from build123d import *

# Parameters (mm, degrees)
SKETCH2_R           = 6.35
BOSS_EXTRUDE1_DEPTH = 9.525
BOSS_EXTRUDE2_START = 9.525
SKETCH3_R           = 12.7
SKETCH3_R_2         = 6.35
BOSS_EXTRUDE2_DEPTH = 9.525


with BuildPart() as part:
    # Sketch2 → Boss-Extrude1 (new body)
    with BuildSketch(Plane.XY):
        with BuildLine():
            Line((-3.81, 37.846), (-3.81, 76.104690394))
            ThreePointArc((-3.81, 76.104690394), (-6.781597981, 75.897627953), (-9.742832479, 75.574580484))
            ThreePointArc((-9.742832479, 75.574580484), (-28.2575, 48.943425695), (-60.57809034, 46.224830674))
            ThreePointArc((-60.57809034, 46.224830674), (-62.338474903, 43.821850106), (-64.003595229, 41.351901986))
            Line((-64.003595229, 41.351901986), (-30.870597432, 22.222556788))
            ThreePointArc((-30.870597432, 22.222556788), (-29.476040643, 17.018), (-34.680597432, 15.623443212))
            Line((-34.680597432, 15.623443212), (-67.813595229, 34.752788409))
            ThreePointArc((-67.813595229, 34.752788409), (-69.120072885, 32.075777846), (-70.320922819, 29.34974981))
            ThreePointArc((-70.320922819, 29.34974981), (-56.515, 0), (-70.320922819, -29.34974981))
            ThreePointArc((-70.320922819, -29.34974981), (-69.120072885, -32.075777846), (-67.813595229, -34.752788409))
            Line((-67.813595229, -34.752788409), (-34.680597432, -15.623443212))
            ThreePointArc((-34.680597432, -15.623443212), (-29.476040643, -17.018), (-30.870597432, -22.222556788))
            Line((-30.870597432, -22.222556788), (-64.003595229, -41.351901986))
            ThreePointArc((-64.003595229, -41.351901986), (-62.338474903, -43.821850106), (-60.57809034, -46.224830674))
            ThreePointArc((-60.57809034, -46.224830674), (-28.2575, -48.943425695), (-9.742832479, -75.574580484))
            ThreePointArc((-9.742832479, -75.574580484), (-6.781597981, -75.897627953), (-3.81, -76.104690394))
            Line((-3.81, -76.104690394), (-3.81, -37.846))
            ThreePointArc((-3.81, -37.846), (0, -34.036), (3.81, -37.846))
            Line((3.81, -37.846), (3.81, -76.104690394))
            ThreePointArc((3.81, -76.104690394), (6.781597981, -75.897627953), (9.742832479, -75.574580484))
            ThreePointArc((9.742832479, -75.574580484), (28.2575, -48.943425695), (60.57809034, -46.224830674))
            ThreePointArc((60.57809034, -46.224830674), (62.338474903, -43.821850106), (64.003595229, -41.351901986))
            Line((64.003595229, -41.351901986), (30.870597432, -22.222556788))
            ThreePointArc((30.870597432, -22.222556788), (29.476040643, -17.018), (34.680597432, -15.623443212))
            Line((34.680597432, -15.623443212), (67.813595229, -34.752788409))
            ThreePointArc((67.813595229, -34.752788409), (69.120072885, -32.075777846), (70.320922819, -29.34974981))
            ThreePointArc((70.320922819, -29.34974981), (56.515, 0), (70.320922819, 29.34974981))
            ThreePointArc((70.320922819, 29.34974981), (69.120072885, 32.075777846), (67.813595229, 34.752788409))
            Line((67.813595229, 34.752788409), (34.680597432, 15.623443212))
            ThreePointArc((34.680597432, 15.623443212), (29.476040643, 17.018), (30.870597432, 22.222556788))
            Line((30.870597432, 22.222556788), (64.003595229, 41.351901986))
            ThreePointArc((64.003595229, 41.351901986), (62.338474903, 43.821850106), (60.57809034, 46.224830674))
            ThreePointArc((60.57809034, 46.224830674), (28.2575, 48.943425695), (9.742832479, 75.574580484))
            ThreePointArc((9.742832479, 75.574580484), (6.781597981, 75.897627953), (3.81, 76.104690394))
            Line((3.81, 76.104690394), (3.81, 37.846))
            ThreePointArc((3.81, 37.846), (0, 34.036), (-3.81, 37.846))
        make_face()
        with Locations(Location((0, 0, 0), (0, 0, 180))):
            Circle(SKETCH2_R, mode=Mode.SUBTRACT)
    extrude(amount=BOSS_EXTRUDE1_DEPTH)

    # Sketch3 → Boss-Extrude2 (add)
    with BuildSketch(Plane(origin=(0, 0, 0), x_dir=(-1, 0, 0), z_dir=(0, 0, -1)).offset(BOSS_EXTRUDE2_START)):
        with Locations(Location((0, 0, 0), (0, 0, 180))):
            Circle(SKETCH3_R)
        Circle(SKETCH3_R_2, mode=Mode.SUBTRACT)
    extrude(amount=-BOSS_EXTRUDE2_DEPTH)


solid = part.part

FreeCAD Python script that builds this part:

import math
import FreeCAD as App
import Part
import Sketcher
Q = App.Units.Quantity

doc = App.newDocument("Part")
body = doc.addObject("PartDesign::Body", "Body")

# Sketch on XY plane
sketch1 = doc.addObject("Sketcher::SketchObject", "Sketch")
body.addObject(sketch1)
sketch1.AttachmentSupport = (doc.XY_Plane, [""])
sketch1.MapMode = "FlatFace"
sketch1.addGeometry(Part.LineSegment(App.Vector(-3.8, 37.8, 0), App.Vector(-3.8, 76.1, 0)), False)
sketch1.addGeometry(Part.ArcOfCircle(Part.Circle(App.Vector(0, 0, 0), App.Vector(0, 0, 1), 76.2), math.radians(92.87), math.radians(97.35)), False)
sketch1.addGeometry(Part.ArcOfCircle(Part.Circle(App.Vector(-47.3, 81.9, 0), App.Vector(0, 0, 1), 38.1), math.radians(-110), math.radians(-10)), False)
sketch1.addGeometry(Part.ArcOfCircle(Part.Circle(App.Vector(0, 0, 0), App.Vector(0, 0, 1), 76.2), math.radians(142.65), math.radians(147.13)), False)
sketch1.addGeometry(Part.LineSegment(App.Vector(-64, 41.4, 0), App.Vector(-30.9, 22.2, 0)), False)
sketch1.addGeometry(Part.ArcOfCircle(Part.Circle(App.Vector(-32.8, 18.9, 0), App.Vector(0, 0, 1), 3.8), math.radians(-120), math.radians(60)), False)
sketch1.addGeometry(Part.LineSegment(App.Vector(-34.7, 15.6, 0), App.Vector(-67.8, 34.8, 0)), False)
sketch1.addGeometry(Part.ArcOfCircle(Part.Circle(App.Vector(0, 0, 0), App.Vector(0, 0, 1), 76.2), math.radians(152.87), math.radians(157.35)), False)
sketch1.addGeometry(Part.ArcOfCircle(Part.Circle(App.Vector(-94.6, 0, 0), App.Vector(0, 0, 1), 38.1), math.radians(-50), math.radians(50)), False)
sketch1.addGeometry(Part.ArcOfCircle(Part.Circle(App.Vector(0, 0, 0), App.Vector(0, 0, 1), 76.2), math.radians(-157.35), math.radians(-152.87)), False)
sketch1.addGeometry(Part.LineSegment(App.Vector(-67.8, -34.8, 0), App.Vector(-34.7, -15.6, 0)), False)
sketch1.addGeometry(Part.ArcOfCircle(Part.Circle(App.Vector(-32.8, -18.9, 0), App.Vector(0, 0, 1), 3.8), math.radians(-60), math.radians(120)), False)
sketch1.addGeometry(Part.LineSegment(App.Vector(-30.9, -22.2, 0), App.Vector(-64, -41.4, 0)), False)
sketch1.addGeometry(Part.ArcOfCircle(Part.Circle(App.Vector(0, 0, 0), App.Vector(0, 0, 1), 76.2), math.radians(-147.13), math.radians(-142.65)), False)
sketch1.addGeometry(Part.ArcOfCircle(Part.Circle(App.Vector(-47.3, -81.9, 0), App.Vector(0, 0, 1), 38.1), math.radians(10), math.radians(110)), False)
sketch1.addGeometry(Part.ArcOfCircle(Part.Circle(App.Vector(0, 0, 0), App.Vector(0, 0, 1), 76.2), math.radians(-97.35), math.radians(-92.87)), False)
sketch1.addGeometry(Part.LineSegment(App.Vector(-3.8, -76.1, 0), App.Vector(-3.8, -37.8, 0)), False)
sketch1.addGeometry(Part.ArcOfCircle(Part.Circle(App.Vector(0, -37.8, 0), App.Vector(0, 0, 1), 3.8), math.radians(0), math.radians(180)), False)
sketch1.addGeometry(Part.LineSegment(App.Vector(3.8, -37.8, 0), App.Vector(3.8, -76.1, 0)), False)
sketch1.addGeometry(Part.ArcOfCircle(Part.Circle(App.Vector(0, 0, 0), App.Vector(0, 0, 1), 76.2), math.radians(-87.13), math.radians(-82.65)), False)
sketch1.addGeometry(Part.ArcOfCircle(Part.Circle(App.Vector(47.3, -81.9, 0), App.Vector(0, 0, 1), 38.1), math.radians(70), math.radians(170)), False)
sketch1.addGeometry(Part.ArcOfCircle(Part.Circle(App.Vector(0, 0, 0), App.Vector(0, 0, 1), 76.2), math.radians(-37.35), math.radians(-32.87)), False)
sketch1.addGeometry(Part.LineSegment(App.Vector(64, -41.4, 0), App.Vector(30.9, -22.2, 0)), False)
sketch1.addGeometry(Part.ArcOfCircle(Part.Circle(App.Vector(32.8, -18.9, 0), App.Vector(0, 0, 1), 3.8), math.radians(60), math.radians(240)), False)
sketch1.addGeometry(Part.LineSegment(App.Vector(34.7, -15.6, 0), App.Vector(67.8, -34.8, 0)), False)
sketch1.addGeometry(Part.ArcOfCircle(Part.Circle(App.Vector(0, 0, 0), App.Vector(0, 0, 1), 76.2), math.radians(-27.13), math.radians(-22.65)), False)
sketch1.addGeometry(Part.ArcOfCircle(Part.Circle(App.Vector(94.6, 0, 0), App.Vector(0, 0, 1), 38.1), math.radians(130), math.radians(230)), False)
sketch1.addGeometry(Part.ArcOfCircle(Part.Circle(App.Vector(0, 0, 0), App.Vector(0, 0, 1), 76.2), math.radians(22.65), math.radians(27.13)), False)
sketch1.addGeometry(Part.LineSegment(App.Vector(67.8, 34.8, 0), App.Vector(34.7, 15.6, 0)), False)
sketch1.addGeometry(Part.ArcOfCircle(Part.Circle(App.Vector(32.8, 18.9, 0), App.Vector(0, 0, 1), 3.8), math.radians(120), math.radians(300)), False)
sketch1.addGeometry(Part.LineSegment(App.Vector(30.9, 22.2, 0), App.Vector(64, 41.4, 0)), False)
sketch1.addGeometry(Part.ArcOfCircle(Part.Circle(App.Vector(0, 0, 0), App.Vector(0, 0, 1), 76.2), math.radians(32.87), math.radians(37.35)), False)
sketch1.addGeometry(Part.ArcOfCircle(Part.Circle(App.Vector(47.3, 81.9, 0), App.Vector(0, 0, 1), 38.1), math.radians(-170), math.radians(-70)), False)
sketch1.addGeometry(Part.ArcOfCircle(Part.Circle(App.Vector(0, 0, 0), App.Vector(0, 0, 1), 76.2), math.radians(82.65), math.radians(87.13)), False)
sketch1.addGeometry(Part.LineSegment(App.Vector(3.8, 76.1, 0), App.Vector(3.8, 37.8, 0)), False)
sketch1.addGeometry(Part.ArcOfCircle(Part.Circle(App.Vector(0, 37.8, 0), App.Vector(0, 0, 1), 3.8), math.radians(180), math.radians(360)), False)
sketch1.addGeometry(Part.Circle(App.Vector(0, 0, 0), App.Vector(0, 0, 1), 6.3), False)
sketch1.addConstraint(Sketcher.Constraint("Coincident", 0, 2, 1, 1))
sketch1.addConstraint(Sketcher.Constraint("Coincident", 1, 2, 2, 2))
sketch1.addConstraint(Sketcher.Constraint("Coincident", 2, 1, 3, 1))
sketch1.addConstraint(Sketcher.Constraint("Coincident", 3, 2, 4, 1))
sketch1.addConstraint(Sketcher.Constraint("Tangent", 4, 2, 5, 2))
sketch1.addConstraint(Sketcher.Constraint("Tangent", 5, 1, 6, 1))
sketch1.addConstraint(Sketcher.Constraint("Coincident", 6, 2, 7, 1))
sketch1.addConstraint(Sketcher.Constraint("Coincident", 7, 2, 8, 2))
sketch1.addConstraint(Sketcher.Constraint("Coincident", 8, 1, 9, 1))
sketch1.addConstraint(Sketcher.Constraint("Coincident", 9, 2, 10, 1))
sketch1.addConstraint(Sketcher.Constraint("Tangent", 10, 2, 11, 2))
sketch1.addConstraint(Sketcher.Constraint("Tangent", 11, 1, 12, 1))
sketch1.addConstraint(Sketcher.Constraint("Coincident", 12, 2, 13, 1))
sketch1.addConstraint(Sketcher.Constraint("Coincident", 13, 2, 14, 2))
sketch1.addConstraint(Sketcher.Constraint("Coincident", 14, 1, 15, 1))
sketch1.addConstraint(Sketcher.Constraint("Coincident", 15, 2, 16, 1))
sketch1.addConstraint(Sketcher.Constraint("Tangent", 16, 2, 17, 2))
sketch1.addConstraint(Sketcher.Constraint("Tangent", 17, 1, 18, 1))
sketch1.addConstraint(Sketcher.Constraint("Coincident", 18, 2, 19, 1))
sketch1.addConstraint(Sketcher.Constraint("Coincident", 19, 2, 20, 2))
sketch1.addConstraint(Sketcher.Constraint("Coincident", 20, 1, 21, 1))
sketch1.addConstraint(Sketcher.Constraint("Coincident", 21, 2, 22, 1))
sketch1.addConstraint(Sketcher.Constraint("Tangent", 22, 2, 23, 2))
sketch1.addConstraint(Sketcher.Constraint("Tangent", 23, 1, 24, 1))
sketch1.addConstraint(Sketcher.Constraint("Coincident", 24, 2, 25, 1))
sketch1.addConstraint(Sketcher.Constraint("Coincident", 25, 2, 26, 2))
sketch1.addConstraint(Sketcher.Constraint("Coincident", 26, 1, 27, 1))
sketch1.addConstraint(Sketcher.Constraint("Coincident", 27, 2, 28, 1))
sketch1.addConstraint(Sketcher.Constraint("Tangent", 28, 2, 29, 2))
sketch1.addConstraint(Sketcher.Constraint("Tangent", 29, 1, 30, 1))
sketch1.addConstraint(Sketcher.Constraint("Coincident", 30, 2, 31, 1))
sketch1.addConstraint(Sketcher.Constraint("Coincident", 31, 2, 32, 2))
sketch1.addConstraint(Sketcher.Constraint("Coincident", 32, 1, 33, 1))
sketch1.addConstraint(Sketcher.Constraint("Coincident", 33, 2, 34, 1))
sketch1.addConstraint(Sketcher.Constraint("Tangent", 34, 2, 35, 2))
sketch1.addConstraint(Sketcher.Constraint("Tangent", 35, 1, 0, 1))
sketch1.addConstraint(Sketcher.Constraint("Vertical", 0))
sketch1.addConstraint(Sketcher.Constraint("Vertical", 16))
sketch1.addConstraint(Sketcher.Constraint("Vertical", 18))
sketch1.addConstraint(Sketcher.Constraint("Vertical", 34))
sketch1.addConstraint(Sketcher.Constraint("Coincident", 1, 3, -1, 1))
sketch1.addConstraint(Sketcher.Constraint("Coincident", 3, 3, -1, 1))
sketch1.addConstraint(Sketcher.Constraint("Coincident", 7, 3, -1, 1))
sketch1.addConstraint(Sketcher.Constraint("Coincident", 9, 3, -1, 1))
sketch1.addConstraint(Sketcher.Constraint("Coincident", 13, 3, -1, 1))
sketch1.addConstraint(Sketcher.Constraint("Coincident", 15, 3, -1, 1))
sketch1.addConstraint(Sketcher.Constraint("Coincident", 19, 3, -1, 1))
sketch1.addConstraint(Sketcher.Constraint("Coincident", 21, 3, -1, 1))
sketch1.addConstraint(Sketcher.Constraint("Coincident", 25, 3, -1, 1))
sketch1.addConstraint(Sketcher.Constraint("Coincident", 27, 3, -1, 1))
sketch1.addConstraint(Sketcher.Constraint("Coincident", 31, 3, -1, 1))
sketch1.addConstraint(Sketcher.Constraint("Coincident", 33, 3, -1, 1))
sketch1.addConstraint(Sketcher.Constraint("Coincident", 36, 3, -1, 1))
sketch1.addConstraint(Sketcher.Constraint("Equal", 1, 3))
sketch1.addConstraint(Sketcher.Constraint("Equal", 3, 7))
sketch1.addConstraint(Sketcher.Constraint("Equal", 2, 8))
sketch1.addConstraint(Sketcher.Constraint("Equal", 7, 9))
sketch1.addConstraint(Sketcher.Constraint("Equal", 5, 11))
sketch1.addConstraint(Sketcher.Constraint("Equal", 9, 13))
sketch1.addConstraint(Sketcher.Constraint("Equal", 8, 14))
sketch1.addConstraint(Sketcher.Constraint("Equal", 13, 15))
sketch1.addConstraint(Sketcher.Constraint("Equal", 11, 17))
sketch1.addConstraint(Sketcher.Constraint("Equal", 15, 19))
sketch1.addConstraint(Sketcher.Constraint("Equal", 14, 20))
sketch1.addConstraint(Sketcher.Constraint("Equal", 19, 21))
sketch1.addConstraint(Sketcher.Constraint("Equal", 17, 23))
sketch1.addConstraint(Sketcher.Constraint("Equal", 21, 25))
sketch1.addConstraint(Sketcher.Constraint("Equal", 20, 26))
sketch1.addConstraint(Sketcher.Constraint("Equal", 25, 27))
sketch1.addConstraint(Sketcher.Constraint("Equal", 23, 29))
sketch1.addConstraint(Sketcher.Constraint("Equal", 27, 31))
sketch1.addConstraint(Sketcher.Constraint("Equal", 26, 32))
sketch1.addConstraint(Sketcher.Constraint("Equal", 31, 33))
sketch1.addConstraint(Sketcher.Constraint("Equal", 29, 35))
sketch1.addConstraint(Sketcher.Constraint("Symmetric", 2, 3, 20, 3, -1, 1))
sketch1.addConstraint(Sketcher.Constraint("Symmetric", 5, 3, 23, 3, -1, 1))
sketch1.addConstraint(Sketcher.Constraint("Symmetric", 8, 3, 26, 3, -1, 1))
sketch1.addConstraint(Sketcher.Constraint("Symmetric", 11, 3, 29, 3, -1, 1))
sketch1.addConstraint(Sketcher.Constraint("Symmetric", 14, 3, 32, 3, -1, 1))
sketch1.addConstraint(Sketcher.Constraint("Symmetric", 17, 3, 35, 3, -1, 1))
sketch1.addConstraint(Sketcher.Constraint("Symmetric", 14, 3, 20, 3, -2))
sketch1.addConstraint(Sketcher.Constraint("Symmetric", 11, 3, 23, 3, -2))
sketch1.addConstraint(Sketcher.Constraint("PointOnObject", 8, 3, -1))
sketch1.addConstraint(Sketcher.Constraint("PointOnObject", 17, 3, -2))
sketch1.addConstraint(Sketcher.Constraint("Parallel", 4, 6))
sketch1.addConstraint(Sketcher.Constraint("Parallel", 10, 12))
sketch1.addConstraint(Sketcher.Constraint("Parallel", 6, 22))
sketch1.addConstraint(Sketcher.Constraint("Parallel", 22, 24))
sketch1.addConstraint(Sketcher.Constraint("Parallel", 12, 28))
sketch1.addConstraint(Sketcher.Constraint("Parallel", 28, 30))
sketch1.addConstraint(Sketcher.Constraint("Horizontal", 12, 2, 21, 2))
sketch1.addConstraint(Sketcher.Constraint("Equal", 4, 6))
sketch1.addConstraint(Sketcher.Constraint("Radius", 1, Q("3 in")))
sketch1.addConstraint(Sketcher.Constraint("Diameter", 36, Q("0.5 in")))
sketch1.addConstraint(Sketcher.Constraint("Radius", 2, Q("1.5 in")))
sketch1.addConstraint(Sketcher.Constraint("Radius", 5, Q("0.15 in")))
sketch1.addConstraint(Sketcher.Constraint("Angle", 4, Q("-30 deg")))
sketch1.addConstraint(Sketcher.Constraint("DistanceY", 17, 3, -1, 1, Q("1.49 in")))
sketch1.addConstraint(Sketcher.Constraint("DistanceY", -1, 1, 5, 3, Q("0.745 in")))
sketch1.addConstraint(Sketcher.Constraint("DistanceX", 8, 3, -1, 1, Q("3.725 in")))
sketch1.addConstraint(Sketcher.Constraint("DistanceX", 2, 3, -1, 1, Q("1.8625 in")))
sketch1.addConstraint(Sketcher.Constraint("DistanceX", 2, 1, -1, 1, Q("60.57809 mm")))
pad1 = doc.addObject("PartDesign::Pad", "Pad")
body.addObject(pad1)
pad1.Profile = sketch1
pad1.Length = Q("0.375 in")

# Sketch on XY plane
sketch2 = doc.addObject("Sketcher::SketchObject", "Sketch001")
body.addObject(sketch2)
sketch2.AttachmentSupport = (doc.XY_Plane, [""])
sketch2.MapMode = "FlatFace"
sketch2.AttachmentOffset = App.Placement(App.Vector(0, 0, -0.375 * 25.4), App.Rotation())
sketch2.addGeometry(Part.Circle(App.Vector(0, 0, 0), App.Vector(0, 0, 1), 13), False)
sketch2.addGeometry(Part.Circle(App.Vector(0, 0, 0), App.Vector(0, 0, 1), 6), False)
sketch2.addConstraint(Sketcher.Constraint("Coincident", 0, 3, -1, 1))
sketch2.addConstraint(Sketcher.Constraint("Coincident", 1, 3, -1, 1))
sketch2.addConstraint(Sketcher.Constraint("Diameter", 0, Q("1 in")))
sketch2.addConstraint(Sketcher.Constraint("Diameter", 1, Q("0.5 in")))
pad2 = doc.addObject("PartDesign::Pad", "Pad001")
body.addObject(pad2)
pad2.Profile = sketch2
pad2.Length = Q("0.375 in")

doc.recompute()
